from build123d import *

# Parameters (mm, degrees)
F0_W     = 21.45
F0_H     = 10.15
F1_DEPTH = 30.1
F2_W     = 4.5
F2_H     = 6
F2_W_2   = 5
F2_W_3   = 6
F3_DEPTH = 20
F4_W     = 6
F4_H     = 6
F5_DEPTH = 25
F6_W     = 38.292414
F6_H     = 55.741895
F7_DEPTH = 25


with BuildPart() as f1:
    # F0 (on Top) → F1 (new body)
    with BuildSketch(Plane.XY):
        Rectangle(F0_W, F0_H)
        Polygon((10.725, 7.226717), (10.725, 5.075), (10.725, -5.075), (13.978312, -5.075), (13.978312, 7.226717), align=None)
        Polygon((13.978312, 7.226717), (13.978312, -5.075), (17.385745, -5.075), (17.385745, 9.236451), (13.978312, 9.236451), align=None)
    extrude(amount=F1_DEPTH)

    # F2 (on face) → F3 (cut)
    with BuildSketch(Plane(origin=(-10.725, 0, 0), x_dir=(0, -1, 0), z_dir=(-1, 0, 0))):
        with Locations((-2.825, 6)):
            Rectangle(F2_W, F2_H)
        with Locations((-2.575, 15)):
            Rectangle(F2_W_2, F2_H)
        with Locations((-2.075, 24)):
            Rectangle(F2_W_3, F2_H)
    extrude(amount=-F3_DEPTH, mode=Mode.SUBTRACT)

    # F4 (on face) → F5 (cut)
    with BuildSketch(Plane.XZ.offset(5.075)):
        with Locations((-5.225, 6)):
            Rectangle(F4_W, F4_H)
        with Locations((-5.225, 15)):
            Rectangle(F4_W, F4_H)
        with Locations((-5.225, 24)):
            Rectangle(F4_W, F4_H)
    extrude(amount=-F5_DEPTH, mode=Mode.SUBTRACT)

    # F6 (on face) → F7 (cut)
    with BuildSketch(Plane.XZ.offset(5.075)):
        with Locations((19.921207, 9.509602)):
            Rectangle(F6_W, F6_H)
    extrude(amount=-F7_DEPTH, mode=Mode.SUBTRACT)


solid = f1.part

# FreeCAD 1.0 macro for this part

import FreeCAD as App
import Part
import Sketcher


def add_polygon(sketch, points):
    """Adds a closed chain of lines whose ends are joined by coincident constraints."""
    first, n = sketch.GeometryCount, len(points)
    for a, b in zip(points, points[1:] + points[:1]):
        sketch.addGeometry(Part.LineSegment(App.Vector(*a, 0), App.Vector(*b, 0)), False)
    for i in range(n):
        sketch.addConstraint(Sketcher.Constraint("Coincident", first + i, 2, first + (i + 1) % n, 1))

doc = App.newDocument("Part")
body = doc.addObject("PartDesign::Body", "Body")

# Sketch on XY plane
sketch1 = body.newObject("Sketcher::SketchObject", "Sketch")
sketch1.AttachmentSupport = (doc.getObject("XY_Plane"), [""])
sketch1.MapMode = "FlatFace"
add_polygon(sketch1, [(-10.7, 5.1), (-10.7, -5.1), (17.4, -5.1), (17.4, 9.2), (14, 9.2), (14, 7.2), (10.7, 7.2), (10.7, 5.1)])  # lines 0-7
sketch1.addConstraint(Sketcher.Constraint("Vertical", 0))
sketch1.addConstraint(Sketcher.Constraint("Horizontal", 1))
sketch1.addConstraint(Sketcher.Constraint("Vertical", 2))
sketch1.addConstraint(Sketcher.Constraint("Horizontal", 3))
sketch1.addConstraint(Sketcher.Constraint("Vertical", 4))
sketch1.addConstraint(Sketcher.Constraint("Horizontal", 5))
sketch1.addConstraint(Sketcher.Constraint("Vertical", 6))
sketch1.addConstraint(Sketcher.Constraint("Horizontal", 7))
sketch1.addConstraint(Sketcher.Constraint("Symmetric", 0, 2, 6, 2, -1, 1))
sketch1.addConstraint(Sketcher.Constraint("DistanceX", 7, 2, 7, 1, 21.45))
sketch1.addConstraint(Sketcher.Constraint("DistanceY", 0, 2, 0, 1, 10.15))
sketch1.addConstraint(Sketcher.Constraint("DistanceY", 2, 1, 2, 2, 14.311451))
sketch1.addConstraint(Sketcher.Constraint("DistanceX", 1, 1, 1, 2, 28.110745))
sketch1.addConstraint(Sketcher.Constraint("DistanceX", 3, 2, 3, 1, 3.407433))
sketch1.addConstraint(Sketcher.Constraint("DistanceY", 4, 2, 4, 1, 2.009734))
pad1 = body.newObject("PartDesign::Pad", "Pad")
pad1.Profile = sketch1
pad1.Length = 30.1

# Sketch on YZ plane
sketch2 = body.newObject("Sketcher::SketchObject", "Sketch001")
sketch2.AttachmentSupport = (doc.getObject("YZ_Plane"), [""])
sketch2.MapMode = "FlatFace"
sketch2.AttachmentOffset = App.Placement(App.Vector(0, 0, -10.725), App.Rotation())
add_polygon(sketch2, [(5.1, 9), (5.1, 3), (0.6, 3), (0.6, 9)])  # lines 0-3
add_polygon(sketch2, [(5.1, 18), (5.1, 12), (0.1, 12), (0.1, 18)])  # lines 4-7
add_polygon(sketch2, [(5.1, 27), (5.1, 21), (-0.9, 21), (-0.9, 27)])  # lines 8-11
sketch2.addConstraint(Sketcher.Constraint("Vertical", 0))
sketch2.addConstraint(Sketcher.Constraint("Horizontal", 1))
sketch2.addConstraint(Sketcher.Constraint("Vertical", 2))
sketch2.addConstraint(Sketcher.Constraint("Horizontal", 3))
sketch2.addConstraint(Sketcher.Constraint("Vertical", 4))
sketch2.addConstraint(Sketcher.Constraint("Horizontal", 5))
sketch2.addConstraint(Sketcher.Constraint("Vertical", 6))
sketch2.addConstraint(Sketcher.Constraint("Horizontal", 7))
sketch2.addConstraint(Sketcher.Constraint("Vertical", 8))
sketch2.addConstraint(Sketcher.Constraint("Horizontal", 9))
sketch2.addConstraint(Sketcher.Constraint("Vertical", 10))
sketch2.addConstraint(Sketcher.Constraint("Horizontal", 11))
sketch2.addConstraint(Sketcher.Constraint("Vertical", 3, 2, 4, 2))
sketch2.addConstraint(Sketcher.Constraint("Vertical", 7, 2, 8, 2))
sketch2.addConstraint(Sketcher.Constraint("Equal", 11, 0))
sketch2.addConstraint(Sketcher.Constraint("Equal", 2, 4))
sketch2.addConstraint(Sketcher.Constraint("Equal", 6, 8))
sketch2.addConstraint(Sketcher.Constraint("DistanceX", 5, 2, 5, 1, 5.0))
sketch2.addConstraint(Sketcher.Constraint("DistanceX", 9, 2, 9, 1, 6.0))
sketch2.addConstraint(Sketcher.Constraint("DistanceX", 1, 2, 1, 1, 4.5))
sketch2.addConstraint(Sketcher.Constraint("DistanceY", -1, 1, 0, 2, 3.0))
sketch2.addConstraint(Sketcher.Constraint("DistanceY", -1, 1, 4, 2, 12.0))
sketch2.addConstraint(Sketcher.Constraint("DistanceY", -1, 1, 8, 2, 21.0))
sketch2.addConstraint(Sketcher.Constraint("DistanceX", -1, 1, 0, 2, 5.075))
pocket1 = body.newObject("PartDesign::Pocket", "Pocket")
pocket1.Profile = sketch2
pocket1.Length = 20
pocket1.Reversed = True

# Sketch on XZ plane
sketch3 = body.newObject("Sketcher::SketchObject", "Sketch002")
sketch3.AttachmentSupport = (doc.getObject("XZ_Plane"), [""])
sketch3.MapMode = "FlatFace"
sketch3.AttachmentOffset = App.Placement(App.Vector(0, 0, 5.075), App.Rotation())
add_polygon(sketch3, [(-8, 9), (-8, 3), (-2, 3), (-2, 9)])  # lines 0-3
add_polygon(sketch3, [(-8, 18), (-8, 12), (-2, 12), (-2, 18)])  # lines 4-7
add_polygon(sketch3, [(-8, 27), (-8, 21), (-2, 21), (-2, 27)])  # lines 8-11
sketch3.addConstraint(Sketcher.Constraint("Vertical", 0))
sketch3.addConstraint(Sketcher.Constraint("Horizontal", 1))
sketch3.addConstraint(Sketcher.Constraint("Vertical", 2))
sketch3.addConstraint(Sketcher.Constraint("Horizontal", 3))
sketch3.addConstraint(Sketcher.Constraint("Vertical", 4))
sketch3.addConstraint(Sketcher.Constraint("Horizontal", 5))
sketch3.addConstraint(Sketcher.Constraint("Vertical", 6))
sketch3.addConstraint(Sketcher.Constraint("Horizontal", 7))
sketch3.addConstraint(Sketcher.Constraint("Vertical", 8))
sketch3.addConstraint(Sketcher.Constraint("Horizontal", 9))
sketch3.addConstraint(Sketcher.Constraint("Vertical", 10))
sketch3.addConstraint(Sketcher.Constraint("Horizontal", 11))
sketch3.addConstraint(Sketcher.Constraint("Vertical", 3, 2, 4, 2))
sketch3.addConstraint(Sketcher.Constraint("Vertical", 2, 2, 5, 2))
sketch3.addConstraint(Sketcher.Constraint("Vertical", 7, 2, 8, 2))
sketch3.addConstraint(Sketcher.Constraint("Vertical", 6, 2, 9, 2))
sketch3.addConstraint(Sketcher.Constraint("Equal", 11, 0))
sketch3.addConstraint(Sketcher.Constraint("Equal", 2, 4))
sketch3.addConstraint(Sketcher.Constraint("Equal", 6, 8))
sketch3.addConstraint(Sketcher.Constraint("DistanceX", 1, 1, 1, 2, 6.0))
sketch3.addConstraint(Sketcher.Constraint("DistanceY", -1, 1, 0, 2, 3.0))
sketch3.addConstraint(Sketcher.Constraint("DistanceY", -1, 1, 4, 2, 12.0))
sketch3.addConstraint(Sketcher.Constraint("DistanceY", -1, 1, 8, 2, 21.0))
sketch3.addConstraint(Sketcher.Constraint("DistanceX", 0, 2, -1, 1, 8.225))
pocket2 = body.newObject("PartDesign::Pocket", "Pocket001")
pocket2.Profile = sketch3
pocket2.Length = 25

# Sketch on XZ plane
sketch4 = body.newObject("Sketcher::SketchObject", "Sketch003")
sketch4.AttachmentSupport = (doc.getObject("XZ_Plane"), [""])
sketch4.MapMode = "FlatFace"
sketch4.AttachmentOffset = App.Placement(App.Vector(0, 0, 5.075), App.Rotation())
add_polygon(sketch4, [(1, 37), (1, -18), (39, -18), (39, 37)])  # lines 0-3
sketch4.addConstraint(Sketcher.Constraint("Vertical", 0))
sketch4.addConstraint(Sketcher.Constraint("Horizontal", 1))
sketch4.addConstraint(Sketcher.Constraint("Vertical", 2))
sketch4.addConstraint(Sketcher.Constraint("Horizontal", 3))
sketch4.addConstraint(Sketcher.Constraint("DistanceX", -1, 1, 0, 2, 0.775))
sketch4.addConstraint(Sketcher.Constraint("DistanceX", 1, 1, 1, 2, 38.292414))
sketch4.addConstraint(Sketcher.Constraint("DistanceY", 0, 2, 0, 1, 55.741895))
sketch4.addConstraint(Sketcher.Constraint("DistanceY", -1, 1, 2, 2, 37.38055))
pocket3 = body.newObject("PartDesign::Pocket", "Pocket002")
pocket3.Profile = sketch4
pocket3.Length = 25

doc.recompute()
